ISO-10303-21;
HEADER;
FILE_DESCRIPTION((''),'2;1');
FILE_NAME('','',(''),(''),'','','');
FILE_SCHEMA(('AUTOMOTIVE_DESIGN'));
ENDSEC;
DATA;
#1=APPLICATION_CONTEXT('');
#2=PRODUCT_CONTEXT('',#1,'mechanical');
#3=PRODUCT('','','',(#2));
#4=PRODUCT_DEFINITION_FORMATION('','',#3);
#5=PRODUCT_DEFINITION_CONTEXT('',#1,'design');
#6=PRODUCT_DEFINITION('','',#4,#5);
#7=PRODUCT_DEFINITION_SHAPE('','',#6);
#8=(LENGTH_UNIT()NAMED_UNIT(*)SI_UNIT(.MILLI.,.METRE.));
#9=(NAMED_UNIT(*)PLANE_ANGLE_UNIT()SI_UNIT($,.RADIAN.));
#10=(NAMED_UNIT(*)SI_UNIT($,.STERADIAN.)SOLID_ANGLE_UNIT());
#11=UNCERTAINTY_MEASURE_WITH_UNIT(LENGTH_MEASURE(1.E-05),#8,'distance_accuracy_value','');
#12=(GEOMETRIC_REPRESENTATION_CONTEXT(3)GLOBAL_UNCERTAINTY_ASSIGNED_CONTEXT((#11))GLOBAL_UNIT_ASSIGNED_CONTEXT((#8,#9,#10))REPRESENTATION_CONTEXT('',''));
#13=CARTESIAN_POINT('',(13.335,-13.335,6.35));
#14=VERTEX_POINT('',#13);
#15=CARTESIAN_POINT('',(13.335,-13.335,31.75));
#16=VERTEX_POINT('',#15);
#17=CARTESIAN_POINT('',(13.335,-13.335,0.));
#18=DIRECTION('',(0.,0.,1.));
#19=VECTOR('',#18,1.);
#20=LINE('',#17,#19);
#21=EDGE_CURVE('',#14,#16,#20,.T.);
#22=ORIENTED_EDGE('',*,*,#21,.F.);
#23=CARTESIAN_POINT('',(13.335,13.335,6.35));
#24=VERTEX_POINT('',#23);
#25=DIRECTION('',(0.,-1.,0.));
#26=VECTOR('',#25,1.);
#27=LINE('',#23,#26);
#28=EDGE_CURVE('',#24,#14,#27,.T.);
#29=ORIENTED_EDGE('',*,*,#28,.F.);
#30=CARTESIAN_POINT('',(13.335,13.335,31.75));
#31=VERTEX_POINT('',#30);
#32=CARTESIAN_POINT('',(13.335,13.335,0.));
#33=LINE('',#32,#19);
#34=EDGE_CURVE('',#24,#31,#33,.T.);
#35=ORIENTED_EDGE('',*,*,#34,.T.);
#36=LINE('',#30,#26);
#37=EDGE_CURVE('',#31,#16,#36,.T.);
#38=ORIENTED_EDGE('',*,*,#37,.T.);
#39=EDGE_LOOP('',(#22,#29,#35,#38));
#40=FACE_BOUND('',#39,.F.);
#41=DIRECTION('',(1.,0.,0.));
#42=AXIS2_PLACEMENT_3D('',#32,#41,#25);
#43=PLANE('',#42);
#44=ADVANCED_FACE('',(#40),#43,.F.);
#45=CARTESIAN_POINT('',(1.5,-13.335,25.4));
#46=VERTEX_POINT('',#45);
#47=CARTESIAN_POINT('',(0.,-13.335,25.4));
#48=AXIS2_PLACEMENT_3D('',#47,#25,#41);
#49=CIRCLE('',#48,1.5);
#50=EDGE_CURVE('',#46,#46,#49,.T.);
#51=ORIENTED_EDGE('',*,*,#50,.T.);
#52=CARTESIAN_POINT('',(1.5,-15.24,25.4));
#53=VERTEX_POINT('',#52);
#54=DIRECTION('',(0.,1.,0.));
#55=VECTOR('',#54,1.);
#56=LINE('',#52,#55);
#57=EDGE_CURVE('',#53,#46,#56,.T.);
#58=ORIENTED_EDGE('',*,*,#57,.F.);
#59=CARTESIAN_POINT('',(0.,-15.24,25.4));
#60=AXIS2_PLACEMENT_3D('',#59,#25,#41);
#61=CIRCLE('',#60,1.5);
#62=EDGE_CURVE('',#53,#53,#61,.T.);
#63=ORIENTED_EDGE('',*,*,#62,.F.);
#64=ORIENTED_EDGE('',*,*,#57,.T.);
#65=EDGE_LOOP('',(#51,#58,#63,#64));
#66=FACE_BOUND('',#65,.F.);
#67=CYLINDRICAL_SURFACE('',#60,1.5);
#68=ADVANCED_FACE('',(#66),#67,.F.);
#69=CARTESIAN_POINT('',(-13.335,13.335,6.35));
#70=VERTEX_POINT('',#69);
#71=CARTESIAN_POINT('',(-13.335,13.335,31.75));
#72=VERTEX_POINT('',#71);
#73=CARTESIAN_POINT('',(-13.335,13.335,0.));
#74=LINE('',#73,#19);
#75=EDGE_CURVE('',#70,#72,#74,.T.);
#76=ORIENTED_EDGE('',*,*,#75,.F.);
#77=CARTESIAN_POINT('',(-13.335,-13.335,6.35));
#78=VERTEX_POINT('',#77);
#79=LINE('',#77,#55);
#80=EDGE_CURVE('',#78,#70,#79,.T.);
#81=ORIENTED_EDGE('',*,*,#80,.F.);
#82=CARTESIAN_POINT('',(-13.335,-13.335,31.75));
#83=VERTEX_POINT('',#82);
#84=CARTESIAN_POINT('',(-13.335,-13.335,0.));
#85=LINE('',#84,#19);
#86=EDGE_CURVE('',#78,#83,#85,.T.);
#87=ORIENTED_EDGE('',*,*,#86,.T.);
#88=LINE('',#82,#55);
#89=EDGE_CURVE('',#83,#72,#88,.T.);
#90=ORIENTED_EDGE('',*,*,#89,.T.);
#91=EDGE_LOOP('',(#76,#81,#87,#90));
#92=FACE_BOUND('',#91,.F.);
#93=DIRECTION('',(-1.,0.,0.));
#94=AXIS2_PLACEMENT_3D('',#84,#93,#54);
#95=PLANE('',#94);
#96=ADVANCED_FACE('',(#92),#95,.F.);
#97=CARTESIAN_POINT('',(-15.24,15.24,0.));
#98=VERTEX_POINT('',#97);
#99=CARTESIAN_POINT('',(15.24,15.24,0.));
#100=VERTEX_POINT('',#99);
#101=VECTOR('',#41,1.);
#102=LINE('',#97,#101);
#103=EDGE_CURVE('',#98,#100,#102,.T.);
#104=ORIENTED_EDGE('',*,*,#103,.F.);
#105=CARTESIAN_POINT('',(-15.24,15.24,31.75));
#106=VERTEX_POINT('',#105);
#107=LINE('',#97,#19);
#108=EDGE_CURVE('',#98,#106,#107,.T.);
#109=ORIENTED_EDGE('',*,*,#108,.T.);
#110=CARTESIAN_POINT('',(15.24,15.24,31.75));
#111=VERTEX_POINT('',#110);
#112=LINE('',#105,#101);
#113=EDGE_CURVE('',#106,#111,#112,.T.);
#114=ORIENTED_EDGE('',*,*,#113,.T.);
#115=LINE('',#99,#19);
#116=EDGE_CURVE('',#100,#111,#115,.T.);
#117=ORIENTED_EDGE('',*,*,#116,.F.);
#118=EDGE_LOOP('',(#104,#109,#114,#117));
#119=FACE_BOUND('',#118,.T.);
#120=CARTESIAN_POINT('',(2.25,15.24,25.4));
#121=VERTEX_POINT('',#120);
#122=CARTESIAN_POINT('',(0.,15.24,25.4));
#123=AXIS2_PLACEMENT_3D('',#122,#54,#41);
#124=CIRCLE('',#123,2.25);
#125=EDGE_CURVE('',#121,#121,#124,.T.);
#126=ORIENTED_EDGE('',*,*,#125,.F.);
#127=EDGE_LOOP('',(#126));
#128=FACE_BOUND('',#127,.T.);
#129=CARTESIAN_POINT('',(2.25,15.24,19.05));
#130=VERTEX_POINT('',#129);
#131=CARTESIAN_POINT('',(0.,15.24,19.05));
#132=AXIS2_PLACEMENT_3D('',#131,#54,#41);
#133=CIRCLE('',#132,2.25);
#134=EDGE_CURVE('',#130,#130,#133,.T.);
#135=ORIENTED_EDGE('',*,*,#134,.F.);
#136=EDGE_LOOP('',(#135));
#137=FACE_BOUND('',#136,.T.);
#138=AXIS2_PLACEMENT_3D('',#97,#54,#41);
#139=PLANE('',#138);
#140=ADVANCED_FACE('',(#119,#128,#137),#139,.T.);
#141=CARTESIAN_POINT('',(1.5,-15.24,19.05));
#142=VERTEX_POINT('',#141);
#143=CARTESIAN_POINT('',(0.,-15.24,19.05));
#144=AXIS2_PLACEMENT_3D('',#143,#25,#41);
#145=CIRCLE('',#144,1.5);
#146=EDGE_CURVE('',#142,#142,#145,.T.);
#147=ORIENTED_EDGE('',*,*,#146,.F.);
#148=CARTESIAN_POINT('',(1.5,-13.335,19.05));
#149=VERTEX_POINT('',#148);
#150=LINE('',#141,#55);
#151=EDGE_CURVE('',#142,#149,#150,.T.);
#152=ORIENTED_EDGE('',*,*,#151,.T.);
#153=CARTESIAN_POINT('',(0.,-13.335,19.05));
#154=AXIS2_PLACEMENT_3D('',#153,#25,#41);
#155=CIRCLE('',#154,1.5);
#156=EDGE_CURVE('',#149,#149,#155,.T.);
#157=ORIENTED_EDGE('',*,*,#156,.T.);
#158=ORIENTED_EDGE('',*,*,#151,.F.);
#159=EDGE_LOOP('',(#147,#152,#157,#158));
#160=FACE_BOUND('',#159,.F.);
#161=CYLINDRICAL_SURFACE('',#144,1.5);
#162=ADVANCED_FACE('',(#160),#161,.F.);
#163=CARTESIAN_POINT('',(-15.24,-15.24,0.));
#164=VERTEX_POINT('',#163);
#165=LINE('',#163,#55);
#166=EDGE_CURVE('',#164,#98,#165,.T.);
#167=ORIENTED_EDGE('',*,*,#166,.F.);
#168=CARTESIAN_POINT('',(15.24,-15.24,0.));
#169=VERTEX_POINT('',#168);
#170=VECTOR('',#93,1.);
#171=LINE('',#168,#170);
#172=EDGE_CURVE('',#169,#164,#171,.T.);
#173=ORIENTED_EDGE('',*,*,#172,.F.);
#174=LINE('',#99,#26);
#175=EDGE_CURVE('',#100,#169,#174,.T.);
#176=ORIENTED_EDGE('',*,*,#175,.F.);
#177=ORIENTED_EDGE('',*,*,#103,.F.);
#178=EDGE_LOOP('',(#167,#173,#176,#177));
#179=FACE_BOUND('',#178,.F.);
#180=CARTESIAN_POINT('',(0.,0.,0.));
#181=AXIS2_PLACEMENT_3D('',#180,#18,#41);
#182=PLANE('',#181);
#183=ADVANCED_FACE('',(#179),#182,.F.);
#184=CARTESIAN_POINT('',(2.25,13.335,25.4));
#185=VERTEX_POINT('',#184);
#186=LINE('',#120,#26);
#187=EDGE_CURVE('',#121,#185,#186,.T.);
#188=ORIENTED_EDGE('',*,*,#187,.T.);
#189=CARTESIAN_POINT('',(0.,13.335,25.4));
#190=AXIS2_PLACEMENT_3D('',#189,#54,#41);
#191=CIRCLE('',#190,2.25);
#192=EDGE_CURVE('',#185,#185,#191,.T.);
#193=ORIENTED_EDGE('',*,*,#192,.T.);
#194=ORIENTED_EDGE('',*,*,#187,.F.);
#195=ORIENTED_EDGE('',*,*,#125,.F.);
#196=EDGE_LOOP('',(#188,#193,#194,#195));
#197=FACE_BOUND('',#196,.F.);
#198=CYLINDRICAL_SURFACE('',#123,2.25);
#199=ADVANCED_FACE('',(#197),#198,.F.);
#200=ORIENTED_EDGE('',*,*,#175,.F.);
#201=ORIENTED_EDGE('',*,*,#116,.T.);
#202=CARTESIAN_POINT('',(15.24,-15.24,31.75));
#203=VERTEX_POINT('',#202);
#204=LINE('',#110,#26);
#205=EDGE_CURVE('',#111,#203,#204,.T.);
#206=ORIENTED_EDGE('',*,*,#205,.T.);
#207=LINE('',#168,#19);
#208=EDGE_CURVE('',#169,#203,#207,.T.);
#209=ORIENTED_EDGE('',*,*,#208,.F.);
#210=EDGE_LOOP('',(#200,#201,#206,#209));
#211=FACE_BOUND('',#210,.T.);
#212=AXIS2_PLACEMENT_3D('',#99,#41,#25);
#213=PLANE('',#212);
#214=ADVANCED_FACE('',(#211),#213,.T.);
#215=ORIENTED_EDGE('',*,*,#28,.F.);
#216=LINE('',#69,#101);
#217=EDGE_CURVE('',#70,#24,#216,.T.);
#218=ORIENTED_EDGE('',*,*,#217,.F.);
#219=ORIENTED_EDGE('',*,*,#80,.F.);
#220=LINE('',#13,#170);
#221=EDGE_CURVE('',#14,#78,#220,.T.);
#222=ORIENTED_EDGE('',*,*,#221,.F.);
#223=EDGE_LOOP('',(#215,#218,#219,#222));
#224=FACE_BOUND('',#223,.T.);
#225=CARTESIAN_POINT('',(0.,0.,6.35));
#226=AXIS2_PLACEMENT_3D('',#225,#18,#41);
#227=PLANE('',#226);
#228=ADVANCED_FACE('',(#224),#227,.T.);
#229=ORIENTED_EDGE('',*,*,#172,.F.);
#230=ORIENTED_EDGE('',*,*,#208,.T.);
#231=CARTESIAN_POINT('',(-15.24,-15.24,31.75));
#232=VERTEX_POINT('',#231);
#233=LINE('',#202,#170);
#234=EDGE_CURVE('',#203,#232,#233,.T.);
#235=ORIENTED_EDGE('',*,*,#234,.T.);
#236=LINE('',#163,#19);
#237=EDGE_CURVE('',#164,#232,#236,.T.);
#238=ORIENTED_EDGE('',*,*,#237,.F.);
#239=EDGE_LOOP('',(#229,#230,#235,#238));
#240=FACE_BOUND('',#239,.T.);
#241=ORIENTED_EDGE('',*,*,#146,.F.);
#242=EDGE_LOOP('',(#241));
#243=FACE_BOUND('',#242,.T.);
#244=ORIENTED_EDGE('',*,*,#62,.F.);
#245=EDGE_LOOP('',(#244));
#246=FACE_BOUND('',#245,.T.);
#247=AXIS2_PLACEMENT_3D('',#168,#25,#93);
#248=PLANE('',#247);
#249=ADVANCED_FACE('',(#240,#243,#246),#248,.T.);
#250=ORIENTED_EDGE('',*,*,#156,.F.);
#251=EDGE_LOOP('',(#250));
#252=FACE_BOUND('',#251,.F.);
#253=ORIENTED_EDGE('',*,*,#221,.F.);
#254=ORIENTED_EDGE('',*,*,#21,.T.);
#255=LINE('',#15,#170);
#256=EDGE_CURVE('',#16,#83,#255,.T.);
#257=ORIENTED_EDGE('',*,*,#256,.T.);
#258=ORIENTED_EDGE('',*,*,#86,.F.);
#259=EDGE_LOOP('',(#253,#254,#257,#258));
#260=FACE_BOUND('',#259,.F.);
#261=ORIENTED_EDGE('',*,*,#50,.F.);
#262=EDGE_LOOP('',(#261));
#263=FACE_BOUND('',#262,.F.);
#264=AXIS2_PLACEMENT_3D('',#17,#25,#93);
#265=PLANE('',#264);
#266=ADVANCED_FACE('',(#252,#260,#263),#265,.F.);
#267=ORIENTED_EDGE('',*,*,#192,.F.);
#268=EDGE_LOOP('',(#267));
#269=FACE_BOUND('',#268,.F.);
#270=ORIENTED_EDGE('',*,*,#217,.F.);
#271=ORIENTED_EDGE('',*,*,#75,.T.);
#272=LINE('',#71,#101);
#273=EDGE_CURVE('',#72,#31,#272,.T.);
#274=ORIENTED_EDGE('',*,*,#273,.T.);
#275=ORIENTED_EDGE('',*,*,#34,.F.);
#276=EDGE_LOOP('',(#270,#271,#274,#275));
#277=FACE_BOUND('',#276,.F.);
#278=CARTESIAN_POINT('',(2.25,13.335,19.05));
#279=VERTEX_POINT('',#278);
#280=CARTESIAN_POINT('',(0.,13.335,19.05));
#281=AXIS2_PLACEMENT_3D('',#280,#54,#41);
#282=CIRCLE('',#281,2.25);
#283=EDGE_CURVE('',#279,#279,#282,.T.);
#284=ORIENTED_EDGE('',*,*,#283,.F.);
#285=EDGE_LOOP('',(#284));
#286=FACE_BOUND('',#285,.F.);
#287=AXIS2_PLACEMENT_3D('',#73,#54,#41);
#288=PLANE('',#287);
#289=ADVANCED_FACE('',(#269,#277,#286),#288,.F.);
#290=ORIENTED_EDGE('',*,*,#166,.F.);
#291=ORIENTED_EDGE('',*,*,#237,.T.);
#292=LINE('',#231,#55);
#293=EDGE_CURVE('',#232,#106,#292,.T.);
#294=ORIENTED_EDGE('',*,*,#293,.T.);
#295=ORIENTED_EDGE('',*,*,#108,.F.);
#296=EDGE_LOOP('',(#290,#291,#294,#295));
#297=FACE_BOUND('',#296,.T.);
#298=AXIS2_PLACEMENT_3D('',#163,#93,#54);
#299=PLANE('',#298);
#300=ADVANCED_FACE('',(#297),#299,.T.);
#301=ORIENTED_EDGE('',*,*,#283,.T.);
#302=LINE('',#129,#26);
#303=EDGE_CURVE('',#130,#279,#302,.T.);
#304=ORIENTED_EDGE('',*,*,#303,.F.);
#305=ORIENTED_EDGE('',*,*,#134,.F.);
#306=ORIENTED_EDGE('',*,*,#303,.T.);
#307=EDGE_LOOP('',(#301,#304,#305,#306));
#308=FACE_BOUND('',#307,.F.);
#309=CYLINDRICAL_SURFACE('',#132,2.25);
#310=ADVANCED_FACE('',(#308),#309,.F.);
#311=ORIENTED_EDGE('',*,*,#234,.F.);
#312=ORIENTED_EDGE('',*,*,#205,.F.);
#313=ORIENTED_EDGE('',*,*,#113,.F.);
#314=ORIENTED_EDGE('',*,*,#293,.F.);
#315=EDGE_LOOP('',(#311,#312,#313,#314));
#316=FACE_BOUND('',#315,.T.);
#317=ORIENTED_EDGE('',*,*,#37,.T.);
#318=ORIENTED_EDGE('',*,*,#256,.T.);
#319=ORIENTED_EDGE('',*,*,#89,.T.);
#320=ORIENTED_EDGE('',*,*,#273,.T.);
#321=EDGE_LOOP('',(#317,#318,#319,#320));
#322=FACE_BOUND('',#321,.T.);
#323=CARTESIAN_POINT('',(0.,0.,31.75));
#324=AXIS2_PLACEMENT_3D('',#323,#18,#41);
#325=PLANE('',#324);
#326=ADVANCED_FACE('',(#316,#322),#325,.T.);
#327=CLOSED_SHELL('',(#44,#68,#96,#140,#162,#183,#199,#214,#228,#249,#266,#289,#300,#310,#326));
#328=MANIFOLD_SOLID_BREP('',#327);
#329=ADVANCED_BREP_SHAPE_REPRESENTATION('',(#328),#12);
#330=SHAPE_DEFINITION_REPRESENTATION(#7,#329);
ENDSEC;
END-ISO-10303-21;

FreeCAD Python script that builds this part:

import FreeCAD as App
import Part
import Sketcher
from FreeCAD import Vector
Q = App.Units.Quantity


def add_polygon(sketch, points):
    """Adds a closed chain of lines whose ends are joined by coincident constraints."""
    first, n = sketch.GeometryCount, len(points)
    for a, b in zip(points, points[1:] + points[:1]):
        sketch.addGeometry(Part.LineSegment(App.Vector(*a, 0), App.Vector(*b, 0)), False)
    for i in range(n):
        sketch.addConstraint(Sketcher.Constraint("Coincident", first + i, 2, first + (i + 1) % n, 1))

doc = App.newDocument("Part")
params = doc.addObject("Spreadsheet::Sheet", "Params")
for row, (alias, value) in enumerate([
    ("sketch1_width", "1.2 in"),
    ("sketch1_width2", "1.05 in"),
    ("pad1_length", "1.25 in"),
    ("sketch2_width", "1.05 in"),
    ("pad2_length", "0.25 in"),
    ("pocket1_length", "1.125 in"),
    ("pocket2_length", "1.125 in"),
], start=1):
    params.set(f"A{row}", alias)
    params.set(f"B{row}", "=" + value)
    params.setAlias(f"B{row}", alias)

body = doc.addObject("PartDesign::Body", "Body")

# Sketch on XY plane
sketch1 = body.newObject("Sketcher::SketchObject", "Sketch")
sketch1.AttachmentSupport = (doc.getObject("XY_Plane"), [""])
sketch1.MapMode = "FlatFace"
add_polygon(sketch1, [(-15.24, -15.24), (15.24, -15.24), (15.24, 15.24), (-15.24, 15.24)])  # lines 0-3
add_polygon(sketch1, [(13.335, 13.335), (13.335, -13.335), (-13.335, -13.335), (-13.335, 13.335)])  # lines 4-7
sketch1.addConstraint(Sketcher.Constraint("Horizontal", 0))
sketch1.addConstraint(Sketcher.Constraint("Vertical", 1))
sketch1.addConstraint(Sketcher.Constraint("Horizontal", 2))
sketch1.addConstraint(Sketcher.Constraint("Vertical", 3))
sketch1.addConstraint(Sketcher.Constraint("Vertical", 4))
sketch1.addConstraint(Sketcher.Constraint("Horizontal", 5))
sketch1.addConstraint(Sketcher.Constraint("Vertical", 6))
sketch1.addConstraint(Sketcher.Constraint("Horizontal", 7))
sketch1.addConstraint(Sketcher.Constraint("Symmetric", 0, 2, 2, 2, -1, 1))
sketch1.addConstraint(Sketcher.Constraint("Symmetric", 4, 2, 6, 2, -1, 1))
sketch1.addConstraint(Sketcher.Constraint("Equal", 2, 1))
sketch1.addConstraint(Sketcher.Constraint("Equal", 7, 4))
sketch1.addConstraint(Sketcher.Constraint("DistanceX", 0, 1, 0, 2, Q("1.2 in")))
sketch1.addConstraint(Sketcher.Constraint("DistanceX", 5, 2, 5, 1, Q("1.05 in")))
sketch1.setExpression("Constraints[20]", "Params.sketch1_width")
sketch1.setExpression("Constraints[21]", "Params.sketch1_width2")
pad1 = body.newObject("PartDesign::Pad", "Pad")
pad1.Profile = sketch1
pad1.setExpression("Length", "Params.pad1_length")

# Sketch on XY plane
sketch2 = body.newObject("Sketcher::SketchObject", "Sketch001")
sketch2.AttachmentSupport = (doc.getObject("XY_Plane"), [""])
sketch2.MapMode = "FlatFace"
add_polygon(sketch2, [(-13.335, -13.335), (13.335, -13.335), (13.335, 13.335), (-13.335, 13.335)])  # lines 0-3
sketch2.addConstraint(Sketcher.Constraint("Horizontal", 0))
sketch2.addConstraint(Sketcher.Constraint("Vertical", 1))
sketch2.addConstraint(Sketcher.Constraint("Horizontal", 2))
sketch2.addConstraint(Sketcher.Constraint("Vertical", 3))
sketch2.addConstraint(Sketcher.Constraint("Symmetric", 0, 2, 2, 2, -1, 1))
sketch2.addConstraint(Sketcher.Constraint("Equal", 2, 1))
sketch2.addConstraint(Sketcher.Constraint("DistanceX", 0, 1, 0, 2, Q("1.05 in")))
sketch2.setExpression("Constraints[10]", "Params.sketch2_width")
pad2 = body.newObject("PartDesign::Pad", "Pad001")
pad2.Profile = sketch2
pad2.setExpression("Length", "Params.pad2_length")

# Sketch on XZ plane
sketch3 = body.newObject("Sketcher::SketchObject", "Sketch002")
sketch3.AttachmentSupport = (doc.getObject("XZ_Plane"), [""])
sketch3.MapMode = "FlatFace"
sketch3.AttachmentOffset = App.Placement(Vector(0, 0, -0.6 * 25.4), App.Rotation())
sketch3.addGeometry(Part.Circle(Vector(0, 19.05, 0), Vector(0, 0, 1), 2.25), False)
sketch3.addGeometry(Part.Circle(Vector(0, 25.4, 0), Vector(0, 0, 1), 2.25), False)
sketch3.addConstraint(Sketcher.Constraint("Equal", 0, 1))
sketch3.addConstraint(Sketcher.Constraint("PointOnObject", 0, 3, -2))
sketch3.addConstraint(Sketcher.Constraint("PointOnObject", 1, 3, -2))
sketch3.addConstraint(Sketcher.Constraint("Diameter", 0, Q("4.5 mm")))
sketch3.addConstraint(Sketcher.Constraint("DistanceY", 0, 3, 1, 3, Q("0.25 in")))
sketch3.addConstraint(Sketcher.Constraint("DistanceY", -1, 1, 1, 3, Q("1 in")))
pocket1 = body.newObject("PartDesign::Pocket", "Pocket")
pocket1.Profile = sketch3
pocket1.setExpression("Length", "Params.pocket1_length")
pocket1.Reversed = True

# Sketch on XZ plane
sketch4 = body.newObject("Sketcher::SketchObject", "Sketch003")
sketch4.AttachmentSupport = (doc.getObject("XZ_Plane"), [""])
sketch4.MapMode = "FlatFace"
sketch4.AttachmentOffset = App.Placement(Vector(0, 0, 0.6 * 25.4), App.Rotation())
sketch4.addGeometry(Part.Circle(Vector(0, 25.4, 0), Vector(0, 0, 1), 1.5), False)
sketch4.addGeometry(Part.Circle(Vector(0, 19.05, 0), Vector(0, 0, 1), 1.5), False)
sketch4.addConstraint(Sketcher.Constraint("Equal", 0, 1))
sketch4.addConstraint(Sketcher.Constraint("PointOnObject", 0, 3, -2))
sketch4.addConstraint(Sketcher.Constraint("PointOnObject", 1, 3, -2))
sketch4.addConstraint(Sketcher.Constraint("Diameter", 0, Q("0.1181 in")))
sketch4.addConstraint(Sketcher.Constraint("DistanceY", -1, 1, 0, 3, Q("1 in")))
sketch4.addConstraint(Sketcher.Constraint("DistanceY", -1, 1, 1, 3, Q("0.75 in")))
pocket2 = body.newObject("PartDesign::Pocket", "Pocket001")
pocket2.Profile = sketch4
pocket2.setExpression("Length", "Params.pocket2_length")

doc.recompute()
